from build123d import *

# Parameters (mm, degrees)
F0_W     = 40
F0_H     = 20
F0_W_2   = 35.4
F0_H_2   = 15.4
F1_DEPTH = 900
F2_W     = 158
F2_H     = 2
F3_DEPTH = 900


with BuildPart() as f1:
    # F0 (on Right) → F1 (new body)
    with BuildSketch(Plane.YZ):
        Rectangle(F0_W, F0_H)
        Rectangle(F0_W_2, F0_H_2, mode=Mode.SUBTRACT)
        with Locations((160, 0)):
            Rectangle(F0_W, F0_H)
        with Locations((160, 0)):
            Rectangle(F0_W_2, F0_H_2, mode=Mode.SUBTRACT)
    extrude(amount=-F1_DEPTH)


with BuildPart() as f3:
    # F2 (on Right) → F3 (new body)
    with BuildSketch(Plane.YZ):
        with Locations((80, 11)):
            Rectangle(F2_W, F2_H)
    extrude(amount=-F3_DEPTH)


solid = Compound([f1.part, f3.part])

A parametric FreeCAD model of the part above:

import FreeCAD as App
import Part
import Sketcher


def add_polygon(sketch, points):
    """Adds a closed chain of lines whose ends are joined by coincident constraints."""
    first, n = sketch.GeometryCount, len(points)
    for a, b in zip(points, points[1:] + points[:1]):
        sketch.addGeometry(Part.LineSegment(App.Vector(*a, 0), App.Vector(*b, 0)), False)
    for i in range(n):
        sketch.addConstraint(Sketcher.Constraint("Coincident", first + i, 2, first + (i + 1) % n, 1))

doc = App.newDocument("Part")
params = doc.addObject("Spreadsheet::Sheet", "Params")
for row, (alias, value) in enumerate([
    ("sketch1_width", "40 mm"),
    ("sketch1_height", "20 mm"),
    ("sketch1_width2", "35.4 mm"),
    ("sketch1_height2", "15.4 mm"),
    ("pad1_length", "900 mm"),
    ("sketch2_width", "158 mm"),
    ("sketch2_height", "2 mm"),
    ("pad2_length", "900 mm"),
], start=1):
    params.set(f"A{row}", alias)
    params.set(f"B{row}", "=" + value)
    params.setAlias(f"B{row}", alias)

body = doc.addObject("PartDesign::Body", "Body")
body.AllowCompound = True

# Sketch on YZ plane
sketch1 = doc.addObject("Sketcher::SketchObject", "Sketch")
body.addObject(sketch1)
sketch1.AttachmentSupport = (doc.YZ_Plane, [""])
sketch1.MapMode = "FlatFace"
add_polygon(sketch1, [(-20, 10), (-20, -10), (20, -10), (20, 10)])  # lines 0-3
add_polygon(sketch1, [(17.7, -7.7), (-17.7, -7.7), (-17.7, 7.7), (17.7, 7.7)])  # lines 4-7
add_polygon(sketch1, [(140, 10), (140, -10), (180, -10), (180, 10)])  # lines 8-11
add_polygon(sketch1, [(177.7, -7.7), (142.3, -7.7), (142.3, 7.7), (177.7, 7.7)])  # lines 12-15
sketch1.addConstraint([
    Sketcher.Constraint("Vertical", 0),
    Sketcher.Constraint("Horizontal", 1),
    Sketcher.Constraint("Vertical", 2),
    Sketcher.Constraint("Horizontal", 3),
    Sketcher.Constraint("Horizontal", 4),
    Sketcher.Constraint("Vertical", 5),
    Sketcher.Constraint("Horizontal", 6),
    Sketcher.Constraint("Vertical", 7),
    Sketcher.Constraint("Vertical", 8),
    Sketcher.Constraint("Horizontal", 9),
    Sketcher.Constraint("Vertical", 10),
    Sketcher.Constraint("Horizontal", 11),
    Sketcher.Constraint("Horizontal", 12),
    Sketcher.Constraint("Vertical", 13),
    Sketcher.Constraint("Horizontal", 14),
    Sketcher.Constraint("Vertical", 15),
    Sketcher.Constraint("Symmetric", 0, 2, 2, 2, -1, 1),
    Sketcher.Constraint("Symmetric", 4, 2, 6, 2, -1, 1),
    Sketcher.Constraint("Horizontal", 1, 2, 8, 2),
    Sketcher.Constraint("Horizontal", 3, 2, 10, 2),
    Sketcher.Constraint("Horizontal", 7, 2, 12, 2),
    Sketcher.Constraint("Horizontal", 6, 2, 13, 2),
    Sketcher.Constraint("Equal", 3, 9),
    Sketcher.Constraint("Equal", 6, 12),
    Sketcher.Constraint("DistanceX", 1, 1, 1, 2, 40.0),
    Sketcher.Constraint("DistanceY", 0, 2, 0, 1, 20.0),
    Sketcher.Constraint("DistanceX", 4, 2, 4, 1, 35.4),
    Sketcher.Constraint("DistanceY", 5, 1, 5, 2, 15.4),
    Sketcher.Constraint("DistanceX", -1, 1, 8, 2, 140.0),
    Sketcher.Constraint("DistanceX", -1, 1, 12, 2, 142.3),
])
sketch1.setExpression("Constraints[40]", "Params.sketch1_width")
sketch1.setExpression("Constraints[41]", "Params.sketch1_height")
sketch1.setExpression("Constraints[42]", "Params.sketch1_width2")
sketch1.setExpression("Constraints[43]", "Params.sketch1_height2")
pad1 = doc.addObject("PartDesign::Pad", "Pad")
body.addObject(pad1)
pad1.Profile = sketch1
pad1.setExpression("Length", "Params.pad1_length")
pad1.Reversed = True
body2 = doc.addObject("PartDesign::Body", "Body001")

# Sketch on YZ plane
sketch2 = doc.addObject("Sketcher::SketchObject", "Sketch001")
body2.addObject(sketch2)
sketch2.AttachmentSupport = (doc.getObject("YZ_Plane001"), [""])
sketch2.MapMode = "FlatFace"
add_polygon(sketch2, [(1, 12), (1, 10), (159, 10), (159, 12)])  # lines 0-3
sketch2.addConstraint([
    Sketcher.Constraint("Vertical", 0),
    Sketcher.Constraint("Horizontal", 1),
    Sketcher.Constraint("Vertical", 2),
    Sketcher.Constraint("Horizontal", 3),
    Sketcher.Constraint("DistanceX", 1, 1, 1, 2, 158.0),
    Sketcher.Constraint("DistanceY", 0, 2, 0, 1, 2.0),
    Sketcher.Constraint("DistanceX", -1, 1, 0, 2, 1.0),
    Sketcher.Constraint("DistanceY", -1, 1, 0, 2, 10.0),
])
sketch2.setExpression("Constraints[8]", "Params.sketch2_width")
sketch2.setExpression("Constraints[9]", "Params.sketch2_height")
pad2 = doc.addObject("PartDesign::Pad", "Pad001")
body2.addObject(pad2)
pad2.Profile = sketch2
pad2.setExpression("Length", "Params.pad2_length")
pad2.Reversed = True

doc.recompute()
